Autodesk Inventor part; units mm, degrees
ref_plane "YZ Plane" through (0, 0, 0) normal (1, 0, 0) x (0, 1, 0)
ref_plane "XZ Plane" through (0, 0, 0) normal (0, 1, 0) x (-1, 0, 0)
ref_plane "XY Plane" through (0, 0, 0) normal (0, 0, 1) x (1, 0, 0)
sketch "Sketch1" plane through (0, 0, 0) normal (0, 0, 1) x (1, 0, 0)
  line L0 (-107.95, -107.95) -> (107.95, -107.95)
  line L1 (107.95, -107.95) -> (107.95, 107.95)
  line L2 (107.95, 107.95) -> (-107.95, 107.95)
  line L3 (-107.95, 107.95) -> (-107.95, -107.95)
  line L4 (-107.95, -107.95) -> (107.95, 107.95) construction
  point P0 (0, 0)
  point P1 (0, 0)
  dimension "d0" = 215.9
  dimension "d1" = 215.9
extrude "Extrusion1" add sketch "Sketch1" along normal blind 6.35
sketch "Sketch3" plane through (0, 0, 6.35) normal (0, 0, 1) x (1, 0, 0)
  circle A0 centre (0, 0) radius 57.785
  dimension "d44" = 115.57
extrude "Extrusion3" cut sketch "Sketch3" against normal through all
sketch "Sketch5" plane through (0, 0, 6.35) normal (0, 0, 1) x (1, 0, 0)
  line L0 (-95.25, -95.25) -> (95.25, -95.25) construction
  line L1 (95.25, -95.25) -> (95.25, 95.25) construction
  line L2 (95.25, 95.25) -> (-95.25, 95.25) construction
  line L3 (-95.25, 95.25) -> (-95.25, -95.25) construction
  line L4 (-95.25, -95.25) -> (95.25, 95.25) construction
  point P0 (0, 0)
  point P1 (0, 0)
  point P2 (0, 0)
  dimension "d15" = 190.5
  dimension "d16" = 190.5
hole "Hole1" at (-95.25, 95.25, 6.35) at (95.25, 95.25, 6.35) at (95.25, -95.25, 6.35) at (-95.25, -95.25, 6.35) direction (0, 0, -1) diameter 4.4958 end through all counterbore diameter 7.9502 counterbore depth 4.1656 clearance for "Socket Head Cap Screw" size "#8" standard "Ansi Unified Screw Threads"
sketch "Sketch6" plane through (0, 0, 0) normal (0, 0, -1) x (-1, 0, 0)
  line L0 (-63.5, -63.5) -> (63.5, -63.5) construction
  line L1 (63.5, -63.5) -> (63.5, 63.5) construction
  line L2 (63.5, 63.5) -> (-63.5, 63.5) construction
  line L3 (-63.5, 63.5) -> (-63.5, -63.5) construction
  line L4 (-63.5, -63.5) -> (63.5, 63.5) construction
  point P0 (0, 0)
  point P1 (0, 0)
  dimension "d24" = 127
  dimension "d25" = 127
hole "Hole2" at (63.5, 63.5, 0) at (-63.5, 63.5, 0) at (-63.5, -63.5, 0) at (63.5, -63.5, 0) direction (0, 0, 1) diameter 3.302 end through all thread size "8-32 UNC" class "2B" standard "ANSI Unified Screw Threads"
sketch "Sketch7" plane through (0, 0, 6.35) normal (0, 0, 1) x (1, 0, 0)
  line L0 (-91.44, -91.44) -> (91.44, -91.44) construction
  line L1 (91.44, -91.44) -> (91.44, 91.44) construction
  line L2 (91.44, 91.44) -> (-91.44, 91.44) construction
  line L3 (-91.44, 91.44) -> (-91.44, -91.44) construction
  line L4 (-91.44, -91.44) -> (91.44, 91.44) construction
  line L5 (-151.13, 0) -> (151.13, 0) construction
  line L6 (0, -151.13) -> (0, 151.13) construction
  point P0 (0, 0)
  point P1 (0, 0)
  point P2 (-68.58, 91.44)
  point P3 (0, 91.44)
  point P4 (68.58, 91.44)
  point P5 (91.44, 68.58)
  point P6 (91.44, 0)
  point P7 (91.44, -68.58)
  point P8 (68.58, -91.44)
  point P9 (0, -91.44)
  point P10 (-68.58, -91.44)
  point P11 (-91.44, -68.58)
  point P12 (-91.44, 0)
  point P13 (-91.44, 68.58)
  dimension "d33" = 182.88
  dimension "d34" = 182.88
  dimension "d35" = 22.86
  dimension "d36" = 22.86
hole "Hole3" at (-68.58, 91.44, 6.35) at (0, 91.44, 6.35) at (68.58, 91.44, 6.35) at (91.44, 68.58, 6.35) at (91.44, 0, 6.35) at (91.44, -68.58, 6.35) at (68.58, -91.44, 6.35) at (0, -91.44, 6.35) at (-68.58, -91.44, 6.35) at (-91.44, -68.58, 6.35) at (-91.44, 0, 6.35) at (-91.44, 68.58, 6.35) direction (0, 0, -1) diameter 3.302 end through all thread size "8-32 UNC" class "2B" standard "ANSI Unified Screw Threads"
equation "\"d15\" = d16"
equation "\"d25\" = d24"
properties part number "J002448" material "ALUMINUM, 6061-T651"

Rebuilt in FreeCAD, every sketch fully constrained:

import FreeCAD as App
import Part
import Sketcher
from FreeCAD import Vector
Q = App.Units.Quantity


def add_polygon(sketch, points):
    """Adds a closed chain of lines whose ends are joined by coincident constraints."""
    first, n = sketch.GeometryCount, len(points)
    for a, b in zip(points, points[1:] + points[:1]):
        sketch.addGeometry(Part.LineSegment(App.Vector(*a, 0), App.Vector(*b, 0)), False)
    for i in range(n):
        sketch.addConstraint(Sketcher.Constraint("Coincident", first + i, 2, first + (i + 1) % n, 1))

doc = App.newDocument("Part")
body = doc.addObject("PartDesign::Body", "Body")

# Sketch on XY plane
sketch1 = doc.addObject("Sketcher::SketchObject", "Sketch")
body.addObject(sketch1)
sketch1.AttachmentSupport = (doc.XY_Plane, [""])
sketch1.MapMode = "FlatFace"
add_polygon(sketch1, [(-108, 108), (-108, -108), (108, -108), (108, 108)])  # lines 0-3
sketch1.addConstraint([
    Sketcher.Constraint("Vertical", 0),
    Sketcher.Constraint("Horizontal", 1),
    Sketcher.Constraint("Vertical", 2),
    Sketcher.Constraint("Horizontal", 3),
    Sketcher.Constraint("Symmetric", 0, 2, 2, 2, -1, 1),
    Sketcher.Constraint("Equal", 3, 0),
    Sketcher.Constraint("DistanceX", 1, 1, 1, 2, Q("8.5 in")),
])
pad1 = doc.addObject("PartDesign::Pad", "Pad")
body.addObject(pad1)
pad1.Profile = sketch1
pad1.Length = Q("0.25 in")

# Sketch on XY plane
sketch2 = doc.addObject("Sketcher::SketchObject", "Sketch001")
body.addObject(sketch2)
sketch2.AttachmentSupport = (doc.XY_Plane, [""])
sketch2.MapMode = "FlatFace"
sketch2.AttachmentOffset = App.Placement(Vector(0, 0, 0.25 * 25.4), App.Rotation())
sketch2.addGeometry(Part.Circle(Vector(0, 0, 0), Vector(0, 0, 1), 58), False)
sketch2.addConstraint([
    Sketcher.Constraint("Coincident", 0, 3, -1, 1),
    Sketcher.Constraint("Diameter", 0, Q("4.55 in")),
])
pocket1 = doc.addObject("PartDesign::Pocket", "Pocket")
body.addObject(pocket1)
pocket1.Profile = sketch2
pocket1.Type = "ThroughAll"

# Sketch on XY plane
sketch3 = doc.addObject("Sketcher::SketchObject", "Sketch002")
body.addObject(sketch3)
sketch3.AttachmentSupport = (doc.XY_Plane, [""])
sketch3.MapMode = "FlatFace"
sketch3.AttachmentOffset = App.Placement(Vector(0, 0, 0.25 * 25.4), App.Rotation())
sketch3.addGeometry([
    Part.Circle(Vector(-95.2, 95.2, 0), Vector(0, 0, 1), 2.2),
    Part.Circle(Vector(95.2, 95.2, 0), Vector(0, 0, 1), 2.2),
    Part.Circle(Vector(95.2, -95.2, 0), Vector(0, 0, 1), 2.2),
    Part.Circle(Vector(-95.2, -95.2, 0), Vector(0, 0, 1), 2.2),
], False)
sketch3.addConstraint([
    Sketcher.Constraint("Equal", 0, 1),
    Sketcher.Constraint("Equal", 1, 2),
    Sketcher.Constraint("Equal", 2, 3),
    Sketcher.Constraint("Symmetric", 0, 3, 2, 3, -1, 1),
    Sketcher.Constraint("Symmetric", 1, 3, 3, 3, -1, 1),
    Sketcher.Constraint("Symmetric", 0, 3, 1, 3, -2),
    Sketcher.Constraint("Diameter", 0, Q("0.177 in")),
    Sketcher.Constraint("DistanceX", 0, 3, 1, 3, Q("7.5 in")),
    Sketcher.Constraint("DistanceY", 2, 3, 1, 3, Q("7.5 in")),
])
doc.recompute()
hole = doc.addObject("PartDesign::Hole", "Hole")
body.addObject(hole)
hole.Profile = sketch3
hole.ThreadType = "None"
hole.Diameter = Q("0.177 in")
hole.DepthType = "ThroughAll"
hole.HoleCutType = "Counterbore"
hole.HoleCutDiameter = Q("0.313 in")
hole.HoleCutDepth = Q("0.164 in")

# Sketch on XY plane
sketch4 = doc.addObject("Sketcher::SketchObject", "Sketch003")
body.addObject(sketch4)
sketch4.AttachmentSupport = (doc.XY_Plane, [""])
sketch4.MapMode = "FlatFace"
sketch4.addGeometry([
    Part.Circle(Vector(63.5, 63.5, 0), Vector(0, 0, 1), 1.7),
    Part.Circle(Vector(-63.5, 63.5, 0), Vector(0, 0, 1), 1.7),
    Part.Circle(Vector(-63.5, -63.5, 0), Vector(0, 0, 1), 1.7),
    Part.Circle(Vector(63.5, -63.5, 0), Vector(0, 0, 1), 1.7),
], False)
sketch4.addConstraint([
    Sketcher.Constraint("Equal", 0, 1),
    Sketcher.Constraint("Equal", 1, 2),
    Sketcher.Constraint("Equal", 2, 3),
    Sketcher.Constraint("Symmetric", 0, 3, 2, 3, -1, 1),
    Sketcher.Constraint("Symmetric", 1, 3, 3, 3, -1, 1),
    Sketcher.Constraint("Symmetric", 0, 3, 1, 3, -2),
    Sketcher.Constraint("Diameter", 0, Q("0.13 in")),
    Sketcher.Constraint("DistanceX", 1, 3, 0, 3, Q("5 in")),
    Sketcher.Constraint("DistanceY", 2, 3, 1, 3, Q("5 in")),
])
doc.recompute()
hole2 = doc.addObject("PartDesign::Hole", "Hole001")
body.addObject(hole2)
hole2.Profile = sketch4
hole2.ThreadType = "None"
hole2.Diameter = Q("0.13 in")
hole2.DepthType = "ThroughAll"
hole2.Reversed = True

# Sketch on XY plane
sketch5 = doc.addObject("Sketcher::SketchObject", "Sketch004")
body.addObject(sketch5)
sketch5.AttachmentSupport = (doc.XY_Plane, [""])
sketch5.MapMode = "FlatFace"
sketch5.AttachmentOffset = App.Placement(Vector(0, 0, 0.25 * 25.4), App.Rotation())
sketch5.addGeometry([
    Part.Circle(Vector(-68.6, 91.4, 0), Vector(0, 0, 1), 1.7),  # 0
    Part.Circle(Vector(0, 91.4, 0), Vector(0, 0, 1), 1.7),  # 1
    Part.Circle(Vector(68.6, 91.4, 0), Vector(0, 0, 1), 1.7),  # 2
    Part.Circle(Vector(91.4, 68.6, 0), Vector(0, 0, 1), 1.7),  # 3
    Part.Circle(Vector(91.4, 0, 0), Vector(0, 0, 1), 1.7),  # 4
    Part.Circle(Vector(91.4, -68.6, 0), Vector(0, 0, 1), 1.7),  # 5
    Part.Circle(Vector(68.6, -91.4, 0), Vector(0, 0, 1), 1.7),  # 6
    Part.Circle(Vector(0, -91.4, 0), Vector(0, 0, 1), 1.7),  # 7
    Part.Circle(Vector(-68.6, -91.4, 0), Vector(0, 0, 1), 1.7),  # 8
    Part.Circle(Vector(-91.4, -68.6, 0), Vector(0, 0, 1), 1.7),  # 9
    Part.Circle(Vector(-91.4, 0, 0), Vector(0, 0, 1), 1.7),  # 10
    Part.Circle(Vector(-91.4, 68.6, 0), Vector(0, 0, 1), 1.7),  # 11
], False)
sketch5.addConstraint([
    Sketcher.Constraint("Equal", 0, 1),
    Sketcher.Constraint("Equal", 1, 2),
    Sketcher.Constraint("Equal", 2, 3),
    Sketcher.Constraint("Equal", 3, 4),
    Sketcher.Constraint("Equal", 4, 5),
    Sketcher.Constraint("Equal", 5, 6),
    Sketcher.Constraint("Equal", 6, 7),
    Sketcher.Constraint("Equal", 7, 8),
    Sketcher.Constraint("Equal", 8, 9),
    Sketcher.Constraint("Equal", 9, 10),
    Sketcher.Constraint("Equal", 10, 11),
    Sketcher.Constraint("Symmetric", 0, 3, 6, 3, -1, 1),
    Sketcher.Constraint("Symmetric", 1, 3, 7, 3, -1, 1),
    Sketcher.Constraint("Symmetric", 2, 3, 8, 3, -1, 1),
    Sketcher.Constraint("Symmetric", 3, 3, 9, 3, -1, 1),
    Sketcher.Constraint("Symmetric", 4, 3, 10, 3, -1, 1),
    Sketcher.Constraint("Symmetric", 5, 3, 11, 3, -1, 1),
    Sketcher.Constraint("Symmetric", 0, 3, 2, 3, -2),
    Sketcher.Constraint("Symmetric", 5, 3, 9, 3, -2),
    Sketcher.Constraint("PointOnObject", 1, 3, -2),
    Sketcher.Constraint("PointOnObject", 4, 3, -1),
    Sketcher.Constraint("Horizontal", 0, 3, 1, 3),
    Sketcher.Constraint("Vertical", 3, 3, 4, 3),
    Sketcher.Constraint("Diameter", 0, Q("0.13 in")),
    Sketcher.Constraint("DistanceX", 0, 3, -1, 1, Q("2.7 in")),
    Sketcher.Constraint("DistanceY", -1, 1, 0, 3, Q("3.6 in")),
    Sketcher.Constraint("DistanceX", -1, 1, 3, 3, Q("3.6 in")),
    Sketcher.Constraint("DistanceY", -1, 1, 3, 3, Q("2.7 in")),
])
doc.recompute()
hole3 = doc.addObject("PartDesign::Hole", "Hole002")
body.addObject(hole3)
hole3.Profile = sketch5
hole3.ThreadType = "None"
hole3.Diameter = Q("0.13 in")
hole3.DepthType = "ThroughAll"

doc.recompute()
